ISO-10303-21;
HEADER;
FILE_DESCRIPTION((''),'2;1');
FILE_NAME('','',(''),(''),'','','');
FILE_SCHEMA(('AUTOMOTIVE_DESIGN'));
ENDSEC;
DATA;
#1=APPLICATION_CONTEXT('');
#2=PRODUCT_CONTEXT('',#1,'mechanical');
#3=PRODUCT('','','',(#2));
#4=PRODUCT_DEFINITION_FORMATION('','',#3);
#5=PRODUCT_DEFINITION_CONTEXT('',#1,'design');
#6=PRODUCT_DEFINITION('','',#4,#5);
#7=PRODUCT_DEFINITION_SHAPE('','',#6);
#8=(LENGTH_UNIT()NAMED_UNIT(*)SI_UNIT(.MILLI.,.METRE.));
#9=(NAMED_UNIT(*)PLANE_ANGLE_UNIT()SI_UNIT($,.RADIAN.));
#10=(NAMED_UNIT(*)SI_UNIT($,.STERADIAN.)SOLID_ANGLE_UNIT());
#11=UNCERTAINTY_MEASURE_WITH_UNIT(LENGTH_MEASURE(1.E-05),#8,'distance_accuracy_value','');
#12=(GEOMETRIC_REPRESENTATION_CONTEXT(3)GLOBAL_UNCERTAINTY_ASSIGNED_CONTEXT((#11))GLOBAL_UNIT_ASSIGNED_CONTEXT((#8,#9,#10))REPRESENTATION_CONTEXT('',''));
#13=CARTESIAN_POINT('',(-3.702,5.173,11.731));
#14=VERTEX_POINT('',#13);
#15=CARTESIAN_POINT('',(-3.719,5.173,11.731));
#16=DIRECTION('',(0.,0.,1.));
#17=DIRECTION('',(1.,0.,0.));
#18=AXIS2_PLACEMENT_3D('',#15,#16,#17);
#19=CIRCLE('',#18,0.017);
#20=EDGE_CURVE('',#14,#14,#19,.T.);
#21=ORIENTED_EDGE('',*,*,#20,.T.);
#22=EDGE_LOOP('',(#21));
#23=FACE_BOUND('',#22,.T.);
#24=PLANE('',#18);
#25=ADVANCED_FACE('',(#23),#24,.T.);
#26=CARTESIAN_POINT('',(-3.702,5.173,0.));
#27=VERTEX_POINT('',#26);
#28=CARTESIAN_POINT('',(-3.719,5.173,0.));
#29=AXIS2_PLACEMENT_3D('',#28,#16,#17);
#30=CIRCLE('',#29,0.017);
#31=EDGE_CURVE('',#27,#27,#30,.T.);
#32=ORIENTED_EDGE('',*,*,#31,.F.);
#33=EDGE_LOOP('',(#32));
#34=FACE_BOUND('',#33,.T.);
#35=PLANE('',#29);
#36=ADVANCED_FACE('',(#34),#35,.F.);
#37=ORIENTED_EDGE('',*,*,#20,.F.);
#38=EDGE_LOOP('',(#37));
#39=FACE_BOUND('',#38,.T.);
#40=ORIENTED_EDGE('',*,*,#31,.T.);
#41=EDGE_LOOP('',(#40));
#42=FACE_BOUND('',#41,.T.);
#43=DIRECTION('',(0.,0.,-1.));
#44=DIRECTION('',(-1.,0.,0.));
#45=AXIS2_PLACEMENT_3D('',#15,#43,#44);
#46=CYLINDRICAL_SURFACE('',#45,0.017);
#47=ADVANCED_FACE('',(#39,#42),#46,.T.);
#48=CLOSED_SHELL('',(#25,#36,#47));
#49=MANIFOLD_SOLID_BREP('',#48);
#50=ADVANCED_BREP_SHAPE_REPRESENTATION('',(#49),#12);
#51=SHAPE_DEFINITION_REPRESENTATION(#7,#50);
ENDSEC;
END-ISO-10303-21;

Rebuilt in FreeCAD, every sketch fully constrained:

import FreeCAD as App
import Part
import Sketcher

doc = App.newDocument("Part")
params = doc.addObject("Spreadsheet::Sheet", "Params")
for row, (alias, value) in enumerate([
    ("pad1_length", "11.731 mm"),
], start=1):
    params.set(f"A{row}", alias)
    params.set(f"B{row}", "=" + value)
    params.setAlias(f"B{row}", alias)

body = doc.addObject("PartDesign::Body", "Body")

# Sketch on XY plane
sketch1 = body.newObject("Sketcher::SketchObject", "Sketch")
sketch1.AttachmentSupport = (doc.getObject("XY_Plane"), [""])
sketch1.MapMode = "FlatFace"
sketch1.addGeometry(Part.Circle(App.Vector(-3.719, 5.173, 0), App.Vector(0, 0, 1), 0.017), False)
sketch1.addConstraint([
    Sketcher.Constraint("Diameter", 0, 0.034),
    Sketcher.Constraint("DistanceX", 0, 3, -1, 1, 3.719),
    Sketcher.Constraint("DistanceY", -1, 1, 0, 3, 5.173),
])
pad1 = body.newObject("PartDesign::Pad", "Pad")
pad1.Profile = sketch1
pad1.setExpression("Length", "Params.pad1_length")

doc.recompute()
